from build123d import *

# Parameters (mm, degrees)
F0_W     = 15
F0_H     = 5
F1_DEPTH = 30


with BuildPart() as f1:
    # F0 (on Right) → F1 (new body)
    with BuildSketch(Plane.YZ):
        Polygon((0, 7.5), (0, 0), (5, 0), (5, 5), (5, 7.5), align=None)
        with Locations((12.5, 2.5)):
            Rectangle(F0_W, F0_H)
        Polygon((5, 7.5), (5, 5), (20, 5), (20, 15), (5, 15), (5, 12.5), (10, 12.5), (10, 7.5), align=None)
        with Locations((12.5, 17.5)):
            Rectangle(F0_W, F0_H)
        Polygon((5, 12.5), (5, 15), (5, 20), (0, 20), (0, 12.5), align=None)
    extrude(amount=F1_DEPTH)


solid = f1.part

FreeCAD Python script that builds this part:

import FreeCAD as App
import Part
import Sketcher
from FreeCAD import Vector


def add_polygon(sketch, points):
    """Adds a closed chain of lines whose ends are joined by coincident constraints."""
    first, n = sketch.GeometryCount, len(points)
    for a, b in zip(points, points[1:] + points[:1]):
        sketch.addGeometry(Part.LineSegment(App.Vector(*a, 0), App.Vector(*b, 0)), False)
    for i in range(n):
        sketch.addConstraint(Sketcher.Constraint("Coincident", first + i, 2, first + (i + 1) % n, 1))

doc = App.newDocument("Part")
params = doc.addObject("Spreadsheet::Sheet", "Params")
for row, (alias, value) in enumerate([
    ("sketch1_width", "20 mm"),
    ("sketch1_width2", "10 mm"),
    ("sketch1_height", "5 mm"),
    ("pad1_length", "30 mm"),
], start=1):
    params.set(f"A{row}", alias)
    params.set(f"B{row}", "=" + value)
    params.setAlias(f"B{row}", alias)

body = doc.addObject("PartDesign::Body", "Body")

# Sketch on YZ plane
sketch1 = doc.addObject("Sketcher::SketchObject", "Sketch")
body.addObject(sketch1)
sketch1.AttachmentSupport = (doc.YZ_Plane, [""])
sketch1.MapMode = "FlatFace"
add_polygon(sketch1, [(0, 7.5), (0, 0), (20, 0), (20, 20), (0, 20), (0, 12.5), (10, 12.5), (10, 7.5)])  # lines 0-7
sketch1.addConstraint([
    Sketcher.Constraint("Vertical", 0),
    Sketcher.Constraint("Horizontal", 1),
    Sketcher.Constraint("Vertical", 2),
    Sketcher.Constraint("Horizontal", 3),
    Sketcher.Constraint("Vertical", 4),
    Sketcher.Constraint("Horizontal", 5),
    Sketcher.Constraint("Vertical", 6),
    Sketcher.Constraint("Horizontal", 7),
    Sketcher.Constraint("Coincident", 0, 2, -1, 1),
    Sketcher.Constraint("PointOnObject", 3, 2, -2),
    Sketcher.Constraint("Equal", 3, 2),
    Sketcher.Constraint("Equal", 0, 4),
    Sketcher.Constraint("DistanceX", 1, 1, 1, 2, 20.0),
    Sketcher.Constraint("DistanceX", 5, 1, 5, 2, 10.0),
    Sketcher.Constraint("DistanceY", 6, 2, 6, 1, 5.0),
])
sketch1.setExpression("Constraints[20]", "Params.sketch1_width")
sketch1.setExpression("Constraints[21]", "Params.sketch1_width2")
sketch1.setExpression("Constraints[22]", "Params.sketch1_height")
pad1 = doc.addObject("PartDesign::Pad", "Pad")
body.addObject(pad1)
pad1.Profile = sketch1
pad1.setExpression("Length", "Params.pad1_length")

doc.recompute()
